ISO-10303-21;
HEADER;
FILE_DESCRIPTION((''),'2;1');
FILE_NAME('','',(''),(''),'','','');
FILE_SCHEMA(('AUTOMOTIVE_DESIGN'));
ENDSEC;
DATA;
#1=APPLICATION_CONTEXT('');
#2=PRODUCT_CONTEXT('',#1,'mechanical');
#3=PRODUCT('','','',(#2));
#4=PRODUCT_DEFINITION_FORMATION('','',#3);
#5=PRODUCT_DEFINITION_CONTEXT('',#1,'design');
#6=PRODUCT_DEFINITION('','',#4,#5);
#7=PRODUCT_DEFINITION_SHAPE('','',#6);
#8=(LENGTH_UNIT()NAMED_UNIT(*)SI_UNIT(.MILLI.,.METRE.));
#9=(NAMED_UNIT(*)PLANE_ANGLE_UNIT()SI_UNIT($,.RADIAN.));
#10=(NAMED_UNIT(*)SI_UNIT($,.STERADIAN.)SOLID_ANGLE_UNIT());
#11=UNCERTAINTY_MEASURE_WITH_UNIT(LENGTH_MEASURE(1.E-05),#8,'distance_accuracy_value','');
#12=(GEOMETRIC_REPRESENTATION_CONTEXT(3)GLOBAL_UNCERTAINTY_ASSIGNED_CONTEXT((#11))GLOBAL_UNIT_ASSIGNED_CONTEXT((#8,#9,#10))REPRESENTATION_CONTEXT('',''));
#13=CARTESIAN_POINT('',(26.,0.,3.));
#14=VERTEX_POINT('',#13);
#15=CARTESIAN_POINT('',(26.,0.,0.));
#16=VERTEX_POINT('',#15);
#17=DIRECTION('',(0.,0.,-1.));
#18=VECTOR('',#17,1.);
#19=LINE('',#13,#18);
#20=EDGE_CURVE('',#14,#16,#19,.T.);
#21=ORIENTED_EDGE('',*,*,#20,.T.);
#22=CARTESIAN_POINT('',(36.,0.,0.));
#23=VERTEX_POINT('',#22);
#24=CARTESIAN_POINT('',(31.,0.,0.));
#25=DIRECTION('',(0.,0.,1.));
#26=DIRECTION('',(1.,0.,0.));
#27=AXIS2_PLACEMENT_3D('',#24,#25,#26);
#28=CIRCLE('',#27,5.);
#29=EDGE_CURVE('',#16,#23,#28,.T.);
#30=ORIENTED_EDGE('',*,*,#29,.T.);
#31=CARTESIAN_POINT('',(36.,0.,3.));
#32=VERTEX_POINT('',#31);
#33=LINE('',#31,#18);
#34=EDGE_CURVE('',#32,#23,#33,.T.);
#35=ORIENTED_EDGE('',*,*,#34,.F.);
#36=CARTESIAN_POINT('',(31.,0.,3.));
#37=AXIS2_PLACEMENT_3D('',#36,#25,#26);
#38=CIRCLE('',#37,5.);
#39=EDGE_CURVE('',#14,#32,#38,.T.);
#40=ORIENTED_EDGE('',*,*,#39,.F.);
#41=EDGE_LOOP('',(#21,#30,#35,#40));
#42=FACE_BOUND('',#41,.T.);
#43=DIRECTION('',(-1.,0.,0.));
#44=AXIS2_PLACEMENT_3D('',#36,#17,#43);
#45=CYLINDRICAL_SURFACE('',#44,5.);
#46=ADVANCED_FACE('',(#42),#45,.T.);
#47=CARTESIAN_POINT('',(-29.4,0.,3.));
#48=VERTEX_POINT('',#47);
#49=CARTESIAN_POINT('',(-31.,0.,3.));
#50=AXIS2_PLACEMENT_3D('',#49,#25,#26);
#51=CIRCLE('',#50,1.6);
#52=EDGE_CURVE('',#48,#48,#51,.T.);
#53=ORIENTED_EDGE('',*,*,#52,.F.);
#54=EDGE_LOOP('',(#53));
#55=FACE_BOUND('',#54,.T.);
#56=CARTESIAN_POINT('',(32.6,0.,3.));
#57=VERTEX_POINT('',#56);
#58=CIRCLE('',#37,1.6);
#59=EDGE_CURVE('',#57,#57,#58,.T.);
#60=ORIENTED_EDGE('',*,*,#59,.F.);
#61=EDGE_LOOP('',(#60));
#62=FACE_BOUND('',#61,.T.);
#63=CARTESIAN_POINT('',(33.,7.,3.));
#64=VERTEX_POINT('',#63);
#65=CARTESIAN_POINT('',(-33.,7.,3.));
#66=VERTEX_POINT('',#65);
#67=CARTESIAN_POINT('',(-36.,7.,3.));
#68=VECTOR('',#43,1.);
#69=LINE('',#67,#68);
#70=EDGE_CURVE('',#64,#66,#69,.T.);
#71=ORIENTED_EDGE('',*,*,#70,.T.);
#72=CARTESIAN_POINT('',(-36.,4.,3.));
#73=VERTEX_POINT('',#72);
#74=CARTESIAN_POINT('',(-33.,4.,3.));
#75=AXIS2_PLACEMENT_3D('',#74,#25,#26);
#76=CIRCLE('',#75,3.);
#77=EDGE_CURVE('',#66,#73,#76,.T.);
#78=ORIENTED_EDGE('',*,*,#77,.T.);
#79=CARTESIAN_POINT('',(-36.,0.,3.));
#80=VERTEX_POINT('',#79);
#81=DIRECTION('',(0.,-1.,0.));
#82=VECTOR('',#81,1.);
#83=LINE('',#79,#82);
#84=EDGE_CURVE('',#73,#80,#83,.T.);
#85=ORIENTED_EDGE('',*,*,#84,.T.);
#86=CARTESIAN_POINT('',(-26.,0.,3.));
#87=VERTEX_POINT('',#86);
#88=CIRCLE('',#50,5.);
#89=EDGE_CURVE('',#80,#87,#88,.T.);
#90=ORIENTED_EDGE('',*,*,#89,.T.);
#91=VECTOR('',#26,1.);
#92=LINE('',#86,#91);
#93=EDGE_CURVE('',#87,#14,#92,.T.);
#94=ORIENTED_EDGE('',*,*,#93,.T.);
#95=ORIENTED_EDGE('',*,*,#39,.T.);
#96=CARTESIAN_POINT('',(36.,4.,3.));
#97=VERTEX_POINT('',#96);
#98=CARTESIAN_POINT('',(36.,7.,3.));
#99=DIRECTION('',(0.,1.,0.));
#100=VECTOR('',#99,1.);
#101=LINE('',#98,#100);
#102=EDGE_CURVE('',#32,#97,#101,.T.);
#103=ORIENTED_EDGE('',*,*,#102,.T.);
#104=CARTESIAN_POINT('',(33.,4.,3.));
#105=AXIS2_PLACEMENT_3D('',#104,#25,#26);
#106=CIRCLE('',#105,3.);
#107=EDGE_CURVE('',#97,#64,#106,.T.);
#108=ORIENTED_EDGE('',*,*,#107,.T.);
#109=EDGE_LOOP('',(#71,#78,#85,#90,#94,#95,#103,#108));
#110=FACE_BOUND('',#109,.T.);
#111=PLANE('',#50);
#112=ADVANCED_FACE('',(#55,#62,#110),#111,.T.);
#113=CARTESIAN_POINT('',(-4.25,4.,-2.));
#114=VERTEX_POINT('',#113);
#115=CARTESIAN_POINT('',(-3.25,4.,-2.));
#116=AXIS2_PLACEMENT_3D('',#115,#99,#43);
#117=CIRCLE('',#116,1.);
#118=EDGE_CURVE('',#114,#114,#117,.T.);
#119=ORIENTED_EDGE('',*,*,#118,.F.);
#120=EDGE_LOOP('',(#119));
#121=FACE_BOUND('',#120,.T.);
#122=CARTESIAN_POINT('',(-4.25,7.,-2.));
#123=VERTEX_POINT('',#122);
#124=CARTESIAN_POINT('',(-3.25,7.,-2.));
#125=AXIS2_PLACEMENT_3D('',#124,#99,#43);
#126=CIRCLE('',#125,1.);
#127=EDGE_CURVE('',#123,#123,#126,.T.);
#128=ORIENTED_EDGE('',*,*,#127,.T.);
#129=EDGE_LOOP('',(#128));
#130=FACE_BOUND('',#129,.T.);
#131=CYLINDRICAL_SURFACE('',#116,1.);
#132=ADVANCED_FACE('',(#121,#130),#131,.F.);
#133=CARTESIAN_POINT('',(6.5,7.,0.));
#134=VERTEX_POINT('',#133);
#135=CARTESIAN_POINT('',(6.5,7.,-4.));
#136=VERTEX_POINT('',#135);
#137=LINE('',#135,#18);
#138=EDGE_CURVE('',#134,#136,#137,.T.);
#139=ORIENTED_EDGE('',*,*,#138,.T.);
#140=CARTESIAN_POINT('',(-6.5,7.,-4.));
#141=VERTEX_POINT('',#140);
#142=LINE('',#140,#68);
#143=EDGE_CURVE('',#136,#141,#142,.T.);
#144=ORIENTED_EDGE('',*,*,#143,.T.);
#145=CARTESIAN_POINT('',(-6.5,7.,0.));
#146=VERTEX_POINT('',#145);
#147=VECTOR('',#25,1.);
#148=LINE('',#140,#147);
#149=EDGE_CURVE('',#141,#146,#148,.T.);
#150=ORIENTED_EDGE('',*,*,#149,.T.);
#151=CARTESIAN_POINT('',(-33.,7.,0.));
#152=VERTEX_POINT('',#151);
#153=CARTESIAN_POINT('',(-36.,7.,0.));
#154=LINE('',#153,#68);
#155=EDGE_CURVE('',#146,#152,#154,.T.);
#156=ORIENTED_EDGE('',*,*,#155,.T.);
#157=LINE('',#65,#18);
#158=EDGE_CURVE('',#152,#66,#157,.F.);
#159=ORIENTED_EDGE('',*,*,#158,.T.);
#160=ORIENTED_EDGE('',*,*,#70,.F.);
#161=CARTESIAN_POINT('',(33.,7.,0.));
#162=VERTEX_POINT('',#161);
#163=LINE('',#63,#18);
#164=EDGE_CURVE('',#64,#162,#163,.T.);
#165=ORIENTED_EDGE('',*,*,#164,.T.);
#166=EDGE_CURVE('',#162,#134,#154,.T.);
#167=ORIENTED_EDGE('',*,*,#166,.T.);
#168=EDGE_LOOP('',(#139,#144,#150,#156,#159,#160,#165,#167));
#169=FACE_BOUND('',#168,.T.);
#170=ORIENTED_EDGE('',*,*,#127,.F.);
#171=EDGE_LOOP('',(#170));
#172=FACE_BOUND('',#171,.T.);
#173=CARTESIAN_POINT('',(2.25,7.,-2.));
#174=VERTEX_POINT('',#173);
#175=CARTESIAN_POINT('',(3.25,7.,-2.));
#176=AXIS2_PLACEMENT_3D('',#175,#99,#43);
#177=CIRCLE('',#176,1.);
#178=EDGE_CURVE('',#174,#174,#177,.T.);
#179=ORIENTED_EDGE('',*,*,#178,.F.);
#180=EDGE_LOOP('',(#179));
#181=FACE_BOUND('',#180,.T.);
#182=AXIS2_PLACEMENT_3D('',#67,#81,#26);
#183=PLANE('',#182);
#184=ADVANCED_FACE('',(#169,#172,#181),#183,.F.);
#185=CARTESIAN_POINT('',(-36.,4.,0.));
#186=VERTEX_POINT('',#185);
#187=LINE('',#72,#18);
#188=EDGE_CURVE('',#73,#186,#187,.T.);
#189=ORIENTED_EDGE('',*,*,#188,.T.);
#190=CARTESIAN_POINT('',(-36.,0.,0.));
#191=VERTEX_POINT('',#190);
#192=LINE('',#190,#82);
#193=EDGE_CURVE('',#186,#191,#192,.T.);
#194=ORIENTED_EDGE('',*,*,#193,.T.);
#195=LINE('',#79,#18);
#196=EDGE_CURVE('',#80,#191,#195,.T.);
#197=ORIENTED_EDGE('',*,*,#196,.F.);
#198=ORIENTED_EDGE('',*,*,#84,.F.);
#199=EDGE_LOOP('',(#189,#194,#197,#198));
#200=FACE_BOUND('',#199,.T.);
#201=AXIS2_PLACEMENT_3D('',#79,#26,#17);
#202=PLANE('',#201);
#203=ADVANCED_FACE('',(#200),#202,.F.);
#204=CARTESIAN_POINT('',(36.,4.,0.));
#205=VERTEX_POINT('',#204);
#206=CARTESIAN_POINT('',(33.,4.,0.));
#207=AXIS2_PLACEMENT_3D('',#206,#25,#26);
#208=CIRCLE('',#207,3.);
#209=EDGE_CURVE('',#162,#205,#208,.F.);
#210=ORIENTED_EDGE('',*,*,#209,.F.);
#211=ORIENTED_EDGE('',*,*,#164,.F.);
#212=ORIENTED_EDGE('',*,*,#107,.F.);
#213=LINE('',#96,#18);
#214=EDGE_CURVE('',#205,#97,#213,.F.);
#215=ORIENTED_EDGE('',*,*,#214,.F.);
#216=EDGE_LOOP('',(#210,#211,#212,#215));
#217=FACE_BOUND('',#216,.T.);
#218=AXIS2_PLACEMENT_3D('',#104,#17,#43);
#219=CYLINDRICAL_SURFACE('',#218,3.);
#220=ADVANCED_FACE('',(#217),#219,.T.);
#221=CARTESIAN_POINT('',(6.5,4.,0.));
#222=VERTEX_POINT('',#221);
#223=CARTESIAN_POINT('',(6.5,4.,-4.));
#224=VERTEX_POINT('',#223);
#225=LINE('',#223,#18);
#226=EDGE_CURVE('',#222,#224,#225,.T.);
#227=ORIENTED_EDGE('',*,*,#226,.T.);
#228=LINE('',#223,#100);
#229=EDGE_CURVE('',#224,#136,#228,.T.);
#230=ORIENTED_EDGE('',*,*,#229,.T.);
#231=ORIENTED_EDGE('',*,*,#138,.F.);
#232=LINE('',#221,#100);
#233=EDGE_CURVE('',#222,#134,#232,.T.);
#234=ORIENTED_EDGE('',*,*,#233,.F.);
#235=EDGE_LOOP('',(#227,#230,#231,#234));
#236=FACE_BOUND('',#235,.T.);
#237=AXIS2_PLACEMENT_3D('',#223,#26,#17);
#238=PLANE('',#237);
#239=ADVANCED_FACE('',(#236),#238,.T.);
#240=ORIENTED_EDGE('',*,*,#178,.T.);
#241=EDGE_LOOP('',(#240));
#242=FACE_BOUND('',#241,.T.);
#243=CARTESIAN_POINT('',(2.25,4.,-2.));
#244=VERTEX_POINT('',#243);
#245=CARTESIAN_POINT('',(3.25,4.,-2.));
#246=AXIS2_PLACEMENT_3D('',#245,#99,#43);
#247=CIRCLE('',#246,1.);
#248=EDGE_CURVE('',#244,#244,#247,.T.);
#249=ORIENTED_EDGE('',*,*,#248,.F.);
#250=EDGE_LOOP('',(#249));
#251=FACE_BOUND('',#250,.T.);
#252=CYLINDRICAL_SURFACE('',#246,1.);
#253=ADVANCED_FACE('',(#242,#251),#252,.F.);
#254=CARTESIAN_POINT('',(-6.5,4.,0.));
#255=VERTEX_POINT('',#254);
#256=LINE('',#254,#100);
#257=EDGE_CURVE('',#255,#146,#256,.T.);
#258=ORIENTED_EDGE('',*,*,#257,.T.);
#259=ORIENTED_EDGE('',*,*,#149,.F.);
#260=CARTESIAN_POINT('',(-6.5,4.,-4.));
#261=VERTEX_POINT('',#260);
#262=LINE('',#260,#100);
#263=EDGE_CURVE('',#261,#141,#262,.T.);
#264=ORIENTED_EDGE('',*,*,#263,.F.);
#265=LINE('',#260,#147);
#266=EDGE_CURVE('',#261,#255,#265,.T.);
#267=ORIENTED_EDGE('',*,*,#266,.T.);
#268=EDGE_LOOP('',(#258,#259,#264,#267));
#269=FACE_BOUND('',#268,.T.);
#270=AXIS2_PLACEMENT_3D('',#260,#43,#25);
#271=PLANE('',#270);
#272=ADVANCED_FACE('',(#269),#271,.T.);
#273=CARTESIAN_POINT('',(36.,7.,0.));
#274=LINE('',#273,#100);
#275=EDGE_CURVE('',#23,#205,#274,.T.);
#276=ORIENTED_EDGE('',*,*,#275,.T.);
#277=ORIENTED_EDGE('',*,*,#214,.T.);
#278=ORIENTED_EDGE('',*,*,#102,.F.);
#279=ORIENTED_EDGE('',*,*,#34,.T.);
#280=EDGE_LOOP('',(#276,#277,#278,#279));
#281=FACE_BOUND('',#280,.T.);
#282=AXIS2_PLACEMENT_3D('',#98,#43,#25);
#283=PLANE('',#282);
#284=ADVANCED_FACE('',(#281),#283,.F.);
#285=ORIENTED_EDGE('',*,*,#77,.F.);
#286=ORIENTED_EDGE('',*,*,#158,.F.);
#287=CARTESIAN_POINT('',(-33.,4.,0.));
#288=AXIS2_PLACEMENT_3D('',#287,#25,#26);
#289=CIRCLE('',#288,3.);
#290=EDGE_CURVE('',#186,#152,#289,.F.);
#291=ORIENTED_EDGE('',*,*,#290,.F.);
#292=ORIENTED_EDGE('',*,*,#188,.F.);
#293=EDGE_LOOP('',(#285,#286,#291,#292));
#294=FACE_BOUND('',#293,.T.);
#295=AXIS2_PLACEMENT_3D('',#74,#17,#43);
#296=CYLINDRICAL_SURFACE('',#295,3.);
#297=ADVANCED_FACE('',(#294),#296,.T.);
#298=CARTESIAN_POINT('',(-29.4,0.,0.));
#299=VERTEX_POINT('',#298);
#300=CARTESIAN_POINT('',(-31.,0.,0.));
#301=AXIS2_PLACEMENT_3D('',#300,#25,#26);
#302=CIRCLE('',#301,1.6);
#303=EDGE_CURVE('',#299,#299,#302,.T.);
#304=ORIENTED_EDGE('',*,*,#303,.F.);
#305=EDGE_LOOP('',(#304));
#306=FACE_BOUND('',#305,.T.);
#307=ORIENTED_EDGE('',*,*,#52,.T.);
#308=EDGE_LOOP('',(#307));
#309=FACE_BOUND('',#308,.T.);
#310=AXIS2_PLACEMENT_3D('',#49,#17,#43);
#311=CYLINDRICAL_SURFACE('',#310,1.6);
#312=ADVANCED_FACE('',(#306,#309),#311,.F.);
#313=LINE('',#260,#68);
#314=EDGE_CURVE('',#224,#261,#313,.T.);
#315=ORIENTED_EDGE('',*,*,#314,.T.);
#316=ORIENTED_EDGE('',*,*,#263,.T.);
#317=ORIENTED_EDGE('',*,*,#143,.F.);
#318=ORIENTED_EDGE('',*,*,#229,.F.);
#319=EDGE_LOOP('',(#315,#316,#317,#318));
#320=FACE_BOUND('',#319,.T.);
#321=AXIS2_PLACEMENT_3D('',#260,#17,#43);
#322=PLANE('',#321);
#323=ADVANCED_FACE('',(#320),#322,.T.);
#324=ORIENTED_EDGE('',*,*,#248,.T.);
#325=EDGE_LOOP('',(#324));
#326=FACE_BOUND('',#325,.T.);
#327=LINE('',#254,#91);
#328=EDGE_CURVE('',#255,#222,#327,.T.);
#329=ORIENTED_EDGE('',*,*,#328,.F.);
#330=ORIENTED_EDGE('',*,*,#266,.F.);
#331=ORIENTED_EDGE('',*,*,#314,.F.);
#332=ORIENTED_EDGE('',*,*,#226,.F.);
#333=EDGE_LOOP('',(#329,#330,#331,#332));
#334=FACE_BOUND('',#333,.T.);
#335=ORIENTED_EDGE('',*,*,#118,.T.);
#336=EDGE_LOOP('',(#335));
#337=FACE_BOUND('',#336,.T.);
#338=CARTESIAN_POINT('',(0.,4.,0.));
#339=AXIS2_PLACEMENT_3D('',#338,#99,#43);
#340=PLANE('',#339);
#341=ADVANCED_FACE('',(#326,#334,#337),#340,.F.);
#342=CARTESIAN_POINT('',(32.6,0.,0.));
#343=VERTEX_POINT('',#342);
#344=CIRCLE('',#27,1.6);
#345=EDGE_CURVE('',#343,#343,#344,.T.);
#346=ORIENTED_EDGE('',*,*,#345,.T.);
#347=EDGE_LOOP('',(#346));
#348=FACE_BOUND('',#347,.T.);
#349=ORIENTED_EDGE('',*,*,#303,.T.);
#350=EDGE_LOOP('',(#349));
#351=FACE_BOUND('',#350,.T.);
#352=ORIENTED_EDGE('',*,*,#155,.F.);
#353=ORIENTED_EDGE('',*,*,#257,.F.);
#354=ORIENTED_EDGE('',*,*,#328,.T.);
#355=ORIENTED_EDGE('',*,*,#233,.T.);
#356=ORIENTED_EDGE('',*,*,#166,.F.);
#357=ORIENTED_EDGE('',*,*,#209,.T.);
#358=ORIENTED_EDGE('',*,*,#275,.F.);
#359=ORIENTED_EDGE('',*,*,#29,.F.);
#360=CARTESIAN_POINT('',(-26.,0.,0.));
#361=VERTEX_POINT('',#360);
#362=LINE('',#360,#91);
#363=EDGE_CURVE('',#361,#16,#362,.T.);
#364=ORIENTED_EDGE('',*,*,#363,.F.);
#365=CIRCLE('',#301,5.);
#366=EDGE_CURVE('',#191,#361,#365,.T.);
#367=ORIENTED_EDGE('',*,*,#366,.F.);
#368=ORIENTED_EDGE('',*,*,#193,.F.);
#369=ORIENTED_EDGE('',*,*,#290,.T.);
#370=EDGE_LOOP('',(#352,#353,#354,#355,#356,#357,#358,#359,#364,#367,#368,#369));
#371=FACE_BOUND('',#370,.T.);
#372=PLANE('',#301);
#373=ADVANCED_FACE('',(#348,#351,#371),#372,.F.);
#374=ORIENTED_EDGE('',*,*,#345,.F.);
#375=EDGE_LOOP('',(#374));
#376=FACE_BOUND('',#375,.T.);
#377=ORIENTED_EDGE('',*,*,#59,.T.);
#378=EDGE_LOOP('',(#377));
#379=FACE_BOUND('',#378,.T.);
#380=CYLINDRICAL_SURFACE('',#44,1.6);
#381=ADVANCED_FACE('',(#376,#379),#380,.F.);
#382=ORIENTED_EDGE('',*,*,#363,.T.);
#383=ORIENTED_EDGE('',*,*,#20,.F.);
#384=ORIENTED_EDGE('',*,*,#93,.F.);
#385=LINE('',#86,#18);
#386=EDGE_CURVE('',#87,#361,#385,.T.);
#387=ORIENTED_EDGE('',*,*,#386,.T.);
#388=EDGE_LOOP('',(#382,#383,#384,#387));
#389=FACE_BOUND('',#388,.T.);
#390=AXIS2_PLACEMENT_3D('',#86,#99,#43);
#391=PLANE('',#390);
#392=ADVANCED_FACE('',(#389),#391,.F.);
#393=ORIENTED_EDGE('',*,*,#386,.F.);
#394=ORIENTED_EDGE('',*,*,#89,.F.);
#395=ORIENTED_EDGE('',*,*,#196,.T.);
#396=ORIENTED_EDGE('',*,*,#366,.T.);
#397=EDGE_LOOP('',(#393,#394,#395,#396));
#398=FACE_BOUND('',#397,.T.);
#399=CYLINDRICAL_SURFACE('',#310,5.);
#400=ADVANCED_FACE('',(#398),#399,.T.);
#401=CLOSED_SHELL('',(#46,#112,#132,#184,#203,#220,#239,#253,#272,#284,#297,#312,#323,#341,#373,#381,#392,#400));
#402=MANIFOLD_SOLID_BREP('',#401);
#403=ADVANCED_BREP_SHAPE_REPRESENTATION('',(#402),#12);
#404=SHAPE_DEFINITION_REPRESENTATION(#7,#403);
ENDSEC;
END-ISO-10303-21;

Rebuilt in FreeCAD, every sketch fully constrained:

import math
import FreeCAD as App
import Part
import Sketcher
from FreeCAD import Vector
Q = App.Units.Quantity


def edges_at(feature, points):
    """Names of the edges that pass closest to the given points."""
    edges = feature.Shape.Edges
    near = lambda p: min(range(len(edges)), key=lambda i: edges[i].distToShape(Part.Vertex(*p))[0])
    return sorted({f"Edge{near(p) + 1}" for p in points})

doc = App.newDocument("Part")
params = doc.addObject("Spreadsheet::Sheet", "Params")
for row, (alias, value) in enumerate([
    ("sketch1_radius", "5 mm"),
    ("sketch1_diameter", "3.2 mm"),
    ("sketch1_width", "52 mm"),
    ("sketch1_height", "7 mm"),
    ("pad1_length", "3 mm"),
    ("sketch2_diameter", "2 mm"),
    ("sketch2_width", "13 mm"),
    ("sketch2_height", "4 mm"),
    ("pad2_length", "3 mm"),
    ("fillet_radius", "3 mm"),
], start=1):
    params.set(f"A{row}", alias)
    params.set(f"B{row}", "=" + value)
    params.setAlias(f"B{row}", alias)

body = doc.addObject("PartDesign::Body", "Body")

# Sketch on XY plane
sketch1 = body.newObject("Sketcher::SketchObject", "Sketch")
sketch1.AttachmentSupport = (doc.getObject("XY_Plane"), [""])
sketch1.MapMode = "FlatFace"
sketch1.addGeometry([
    Part.LineSegment(Vector(-26, 0, 0), Vector(26, 0, 0)),  # 0
    Part.ArcOfCircle(Part.Circle(Vector(31, 0, 0), Vector(0, 0, 1), 5), math.radians(180), math.radians(360)),  # 1
    Part.LineSegment(Vector(36, 0, 0), Vector(36, 7, 0)),  # 2
    Part.LineSegment(Vector(36, 7, 0), Vector(-36, 7, 0)),  # 3
    Part.LineSegment(Vector(-36, 7, 0), Vector(-36, 0, 0)),  # 4
    Part.ArcOfCircle(Part.Circle(Vector(-31, 0, 0), Vector(0, 0, 1), 5), math.radians(180), math.radians(360)),  # 5
    Part.Circle(Vector(-31, 0, 0), Vector(0, 0, 1), 1.6),  # 6
    Part.Circle(Vector(31, 0, 0), Vector(0, 0, 1), 1.6),  # 7
], False)
sketch1.addConstraint([
    Sketcher.Constraint("Coincident", 0, 2, 1, 1),
    Sketcher.Constraint("Tangent", 1, 2, 2, 1),
    Sketcher.Constraint("Coincident", 2, 2, 3, 1),
    Sketcher.Constraint("Coincident", 3, 2, 4, 1),
    Sketcher.Constraint("Tangent", 4, 2, 5, 1),
    Sketcher.Constraint("Coincident", 5, 2, 0, 1),
    Sketcher.Constraint("Horizontal", 0),
    Sketcher.Constraint("Vertical", 2),
    Sketcher.Constraint("Horizontal", 3),
    Sketcher.Constraint("Vertical", 4),
    Sketcher.Constraint("Coincident", 6, 3, 5, 3),
    Sketcher.Constraint("Coincident", 7, 3, 1, 3),
    Sketcher.Constraint("Equal", 1, 5),
    Sketcher.Constraint("Equal", 6, 7),
    Sketcher.Constraint("Symmetric", 1, 3, 5, 3, -1, 1),
    Sketcher.Constraint("PointOnObject", 1, 3, -1),
    Sketcher.Constraint("PointOnObject", 0, 2, -1),
    Sketcher.Constraint("Radius", 1, Q("5 mm")),
    Sketcher.Constraint("Diameter", 6, Q("3.2 mm")),
    Sketcher.Constraint("DistanceX", 0, 1, 0, 2, Q("52 mm")),
    Sketcher.Constraint("DistanceY", 2, 1, 2, 2, Q("7 mm")),
])
sketch1.setExpression("Constraints[17]", "Params.sketch1_radius")
sketch1.setExpression("Constraints[18]", "Params.sketch1_diameter")
sketch1.setExpression("Constraints[19]", "Params.sketch1_width")
sketch1.setExpression("Constraints[20]", "Params.sketch1_height")
pad1 = body.newObject("PartDesign::Pad", "Pad")
pad1.Profile = sketch1
pad1.setExpression("Length", "Params.pad1_length")

# Sketch on XZ plane
sketch2 = body.newObject("Sketcher::SketchObject", "Sketch001")
sketch2.AttachmentSupport = (doc.getObject("XZ_Plane"), [""])
sketch2.MapMode = "FlatFace"
sketch2.AttachmentOffset = App.Placement(Vector(0, 0, -7), App.Rotation())
sketch2.addGeometry([
    Part.LineSegment(Vector(-6.5, -4, 0), Vector(-6.5, 0, 0)),  # 0
    Part.LineSegment(Vector(-6.5, 0, 0), Vector(6.5, 0, 0)),  # 1
    Part.LineSegment(Vector(6.5, 0, 0), Vector(6.5, -4, 0)),  # 2
    Part.LineSegment(Vector(6.5, -4, 0), Vector(-6.5, -4, 0)),  # 3
    Part.Circle(Vector(-3.2, -2, 0), Vector(0, 0, 1), 1),  # 4
    Part.Circle(Vector(3.2, -2, 0), Vector(0, 0, 1), 1),  # 5
], False)
sketch2.addConstraint([
    Sketcher.Constraint("Coincident", 0, 2, 1, 1),
    Sketcher.Constraint("Coincident", 1, 2, 2, 1),
    Sketcher.Constraint("Coincident", 2, 2, 3, 1),
    Sketcher.Constraint("Coincident", 3, 2, 0, 1),
    Sketcher.Constraint("Vertical", 0),
    Sketcher.Constraint("Horizontal", 1),
    Sketcher.Constraint("Vertical", 2),
    Sketcher.Constraint("Horizontal", 3),
    Sketcher.Constraint("Equal", 4, 5),
    Sketcher.Constraint("Symmetric", 0, 2, 1, 2, -1, 1),
    Sketcher.Constraint("Symmetric", 4, 3, 5, 3, -2),
    Sketcher.Constraint("Diameter", 4, Q("2 mm")),
    Sketcher.Constraint("DistanceX", 1, 1, 1, 2, Q("13 mm")),
    Sketcher.Constraint("DistanceY", 0, 1, 0, 2, Q("4 mm")),
    Sketcher.Constraint("DistanceY", 4, 3, -1, 1, Q("2 mm")),
    Sketcher.Constraint("DistanceX", 4, 3, 5, 3, Q("6.5 mm")),
])
sketch2.setExpression("Constraints[11]", "Params.sketch2_diameter")
sketch2.setExpression("Constraints[12]", "Params.sketch2_width")
sketch2.setExpression("Constraints[13]", "Params.sketch2_height")
pad2 = body.newObject("PartDesign::Pad", "Pad001")
pad2.Profile = sketch2
pad2.setExpression("Length", "Params.pad2_length")
doc.recompute()

fillet = body.newObject("PartDesign::Fillet", "Fillet")
fillet.Base = (pad2, edges_at(pad2, [(-36, 7, 1.5), (36, 7, 1.5)]))
fillet.setExpression("Radius", "Params.fillet_radius")

doc.recompute()
